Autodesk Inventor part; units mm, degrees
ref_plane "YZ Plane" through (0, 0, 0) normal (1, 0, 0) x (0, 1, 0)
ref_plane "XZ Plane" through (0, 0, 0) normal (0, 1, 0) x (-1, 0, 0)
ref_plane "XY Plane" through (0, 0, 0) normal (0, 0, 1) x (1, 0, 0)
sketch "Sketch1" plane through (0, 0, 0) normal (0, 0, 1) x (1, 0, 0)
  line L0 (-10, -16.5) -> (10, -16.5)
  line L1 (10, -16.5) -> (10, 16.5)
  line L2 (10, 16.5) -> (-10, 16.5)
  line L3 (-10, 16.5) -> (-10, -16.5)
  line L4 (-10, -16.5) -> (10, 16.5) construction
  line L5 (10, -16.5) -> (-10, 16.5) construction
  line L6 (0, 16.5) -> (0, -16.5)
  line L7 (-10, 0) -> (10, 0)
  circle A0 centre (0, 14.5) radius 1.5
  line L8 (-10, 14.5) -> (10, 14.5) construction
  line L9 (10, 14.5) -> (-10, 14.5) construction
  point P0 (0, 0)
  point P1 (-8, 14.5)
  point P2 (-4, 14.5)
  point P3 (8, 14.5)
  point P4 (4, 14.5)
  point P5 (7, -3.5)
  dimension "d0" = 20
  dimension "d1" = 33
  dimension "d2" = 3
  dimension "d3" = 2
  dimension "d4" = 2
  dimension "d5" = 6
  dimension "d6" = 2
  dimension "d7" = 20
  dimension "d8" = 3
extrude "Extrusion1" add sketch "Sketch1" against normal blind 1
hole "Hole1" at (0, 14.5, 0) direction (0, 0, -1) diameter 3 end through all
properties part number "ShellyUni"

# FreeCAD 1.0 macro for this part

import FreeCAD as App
import Part
import Sketcher
Q = App.Units.Quantity

doc = App.newDocument("Part")
body = doc.addObject("PartDesign::Body", "Body")

sketch1 = body.newObject("Sketcher::SketchObject", "Sketch")
sketch1.AttachmentSupport = (doc.getObject("XY_Plane"), [""])
sketch1.MapMode = "FlatFace"
sketch1.addGeometry([
    Part.LineSegment(App.Vector(-10, -16, 0), App.Vector(10, -16, 0)),
    Part.LineSegment(App.Vector(10, -16, 0), App.Vector(10, 16, 0)),
    Part.LineSegment(App.Vector(10, 16, 0), App.Vector(-10, 16, 0)),
    Part.LineSegment(App.Vector(-10, 16, 0), App.Vector(-10, -16, 0)),
], False)
sketch1.addConstraint([
    Sketcher.Constraint("Coincident", 0, 2, 1, 1),
    Sketcher.Constraint("Coincident", 1, 2, 2, 1),
    Sketcher.Constraint("Coincident", 2, 2, 3, 1),
    Sketcher.Constraint("Coincident", 3, 2, 0, 1),
    Sketcher.Constraint("Horizontal", 0),
    Sketcher.Constraint("Vertical", 1),
    Sketcher.Constraint("Horizontal", 2),
    Sketcher.Constraint("Vertical", 3),
    Sketcher.Constraint("Symmetric", 0, 2, 2, 2, -1, 1),
    Sketcher.Constraint("DistanceX", 0, 1, 0, 2, Q("20 mm")),
    Sketcher.Constraint("DistanceY", 1, 1, 1, 2, Q("33 mm")),
])
pad1 = body.newObject("PartDesign::Pad", "Pad")
pad1.Profile = sketch1
pad1.Length = 1
pad1.Reversed = True

sketch2 = body.newObject("Sketcher::SketchObject", "Sketch001")
sketch2.AttachmentSupport = (doc.getObject("XY_Plane"), [""])
sketch2.MapMode = "FlatFace"
sketch2.addGeometry(Part.Circle(App.Vector(0, 14.5, 0), App.Vector(0, 0, 1), 1.5), False)
sketch2.addConstraint([
    Sketcher.Constraint("PointOnObject", 0, 3, -2),
    Sketcher.Constraint("Diameter", 0, Q("3 mm")),
    Sketcher.Constraint("DistanceY", -1, 1, 0, 3, Q("14.5 mm")),
])
doc.recompute()
hole = body.newObject("PartDesign::Hole", "Hole")
hole.Profile = sketch2
hole.ThreadType = "None"
hole.Diameter = 3
hole.DepthType = "ThroughAll"

doc.recompute()
